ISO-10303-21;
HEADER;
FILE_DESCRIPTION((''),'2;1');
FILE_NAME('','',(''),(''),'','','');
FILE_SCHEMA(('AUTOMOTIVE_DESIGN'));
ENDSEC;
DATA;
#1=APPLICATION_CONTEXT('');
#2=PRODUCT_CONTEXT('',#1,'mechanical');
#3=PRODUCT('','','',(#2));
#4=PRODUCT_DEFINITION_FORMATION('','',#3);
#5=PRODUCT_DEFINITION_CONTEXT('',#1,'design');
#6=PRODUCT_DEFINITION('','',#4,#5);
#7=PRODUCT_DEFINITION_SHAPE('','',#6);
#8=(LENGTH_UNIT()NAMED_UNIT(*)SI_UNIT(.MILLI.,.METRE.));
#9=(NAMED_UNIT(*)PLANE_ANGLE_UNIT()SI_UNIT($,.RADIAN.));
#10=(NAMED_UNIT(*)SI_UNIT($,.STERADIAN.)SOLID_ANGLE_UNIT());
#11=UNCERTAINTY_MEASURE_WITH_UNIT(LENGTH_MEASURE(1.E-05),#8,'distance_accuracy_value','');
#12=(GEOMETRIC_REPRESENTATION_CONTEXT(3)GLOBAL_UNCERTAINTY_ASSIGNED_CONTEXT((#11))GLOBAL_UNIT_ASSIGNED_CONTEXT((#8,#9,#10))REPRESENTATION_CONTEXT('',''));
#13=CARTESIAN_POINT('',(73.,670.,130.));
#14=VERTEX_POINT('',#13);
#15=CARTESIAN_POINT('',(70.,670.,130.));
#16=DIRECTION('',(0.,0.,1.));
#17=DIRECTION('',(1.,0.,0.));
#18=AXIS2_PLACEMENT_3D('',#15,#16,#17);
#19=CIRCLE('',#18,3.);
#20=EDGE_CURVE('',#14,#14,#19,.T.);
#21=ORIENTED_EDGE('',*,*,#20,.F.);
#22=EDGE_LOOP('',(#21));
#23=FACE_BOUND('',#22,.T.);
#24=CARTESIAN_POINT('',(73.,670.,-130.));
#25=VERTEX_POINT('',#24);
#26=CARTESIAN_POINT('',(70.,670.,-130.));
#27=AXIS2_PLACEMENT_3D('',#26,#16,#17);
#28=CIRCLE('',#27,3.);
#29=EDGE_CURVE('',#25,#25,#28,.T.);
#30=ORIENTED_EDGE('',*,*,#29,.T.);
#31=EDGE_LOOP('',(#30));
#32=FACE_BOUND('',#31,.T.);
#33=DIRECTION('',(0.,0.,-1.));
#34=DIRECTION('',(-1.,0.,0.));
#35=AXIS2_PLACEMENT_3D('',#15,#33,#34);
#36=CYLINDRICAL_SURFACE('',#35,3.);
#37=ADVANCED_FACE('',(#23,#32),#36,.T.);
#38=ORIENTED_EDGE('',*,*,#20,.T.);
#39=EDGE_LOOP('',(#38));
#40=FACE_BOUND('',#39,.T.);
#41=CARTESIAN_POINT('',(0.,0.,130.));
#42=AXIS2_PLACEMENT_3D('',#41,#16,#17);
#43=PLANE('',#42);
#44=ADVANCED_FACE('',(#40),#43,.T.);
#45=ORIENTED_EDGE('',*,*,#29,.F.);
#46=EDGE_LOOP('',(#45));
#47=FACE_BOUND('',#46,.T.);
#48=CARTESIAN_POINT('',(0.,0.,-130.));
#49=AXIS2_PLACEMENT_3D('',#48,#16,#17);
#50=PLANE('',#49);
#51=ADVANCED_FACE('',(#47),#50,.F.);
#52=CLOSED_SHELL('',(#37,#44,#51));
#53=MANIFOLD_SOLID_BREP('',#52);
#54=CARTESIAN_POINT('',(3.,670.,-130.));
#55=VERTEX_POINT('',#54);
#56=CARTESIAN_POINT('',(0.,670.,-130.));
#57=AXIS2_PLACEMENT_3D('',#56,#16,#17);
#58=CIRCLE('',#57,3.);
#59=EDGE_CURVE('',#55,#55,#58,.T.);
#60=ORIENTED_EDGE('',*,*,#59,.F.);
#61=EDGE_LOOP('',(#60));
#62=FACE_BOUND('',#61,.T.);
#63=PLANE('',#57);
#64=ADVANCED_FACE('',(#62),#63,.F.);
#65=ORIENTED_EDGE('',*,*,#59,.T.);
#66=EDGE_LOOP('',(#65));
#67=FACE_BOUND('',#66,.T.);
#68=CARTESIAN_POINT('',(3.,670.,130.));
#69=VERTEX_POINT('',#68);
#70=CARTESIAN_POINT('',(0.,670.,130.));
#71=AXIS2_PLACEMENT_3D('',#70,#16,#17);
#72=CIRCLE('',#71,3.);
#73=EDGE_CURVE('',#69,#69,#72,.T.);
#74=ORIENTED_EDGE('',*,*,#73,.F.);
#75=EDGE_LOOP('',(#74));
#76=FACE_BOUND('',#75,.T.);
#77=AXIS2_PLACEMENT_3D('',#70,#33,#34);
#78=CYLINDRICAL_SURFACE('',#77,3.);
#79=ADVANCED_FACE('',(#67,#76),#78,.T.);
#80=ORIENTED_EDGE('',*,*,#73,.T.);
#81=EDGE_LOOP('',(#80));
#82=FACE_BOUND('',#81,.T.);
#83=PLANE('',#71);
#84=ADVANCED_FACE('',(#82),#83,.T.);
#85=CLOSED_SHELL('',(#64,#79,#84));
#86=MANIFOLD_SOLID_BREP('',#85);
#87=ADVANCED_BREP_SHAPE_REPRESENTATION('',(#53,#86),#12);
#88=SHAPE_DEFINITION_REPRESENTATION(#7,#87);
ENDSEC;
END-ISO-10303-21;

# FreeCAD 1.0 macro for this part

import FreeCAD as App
import Part
import Sketcher

doc = App.newDocument("Part")
body = doc.addObject("PartDesign::Body", "Body")

# Sketch on XY plane
sketch1 = body.newObject("Sketcher::SketchObject", "Sketch")
sketch1.AttachmentSupport = (doc.getObject("XY_Plane"), [""])
sketch1.MapMode = "FlatFace"
sketch1.addGeometry(Part.Circle(App.Vector(70, 670, 0), App.Vector(0, 0, 1), 3), False)
sketch1.addConstraint([
    Sketcher.Constraint("Diameter", 0, 6.0),
    Sketcher.Constraint("DistanceX", -1, 1, 0, 3, 70.0),
    Sketcher.Constraint("DistanceY", -1, 1, 0, 3, 670.0),
])
pad1 = body.newObject("PartDesign::Pad", "Pad")
pad1.Profile = sketch1
pad1.Type = "TwoLengths"
pad1.Length = 130
pad1.Length2 = 130
body2 = doc.addObject("PartDesign::Body", "Body001")

# Sketch on XY plane
sketch2 = body2.newObject("Sketcher::SketchObject", "Sketch001")
sketch2.AttachmentSupport = (doc.getObject("XY_Plane001"), [""])
sketch2.MapMode = "FlatFace"
sketch2.addGeometry(Part.Circle(App.Vector(0, 670, 0), App.Vector(0, 0, 1), 3), False)
sketch2.addConstraint([
    Sketcher.Constraint("PointOnObject", 0, 3, -2),
    Sketcher.Constraint("Diameter", 0, 6.0),
    Sketcher.Constraint("DistanceY", -1, 1, 0, 3, 670.0),
])
pad2 = body2.newObject("PartDesign::Pad", "Pad001")
pad2.Profile = sketch2
pad2.Type = "TwoLengths"
pad2.Length = 130
pad2.Length2 = 130

doc.recompute()
